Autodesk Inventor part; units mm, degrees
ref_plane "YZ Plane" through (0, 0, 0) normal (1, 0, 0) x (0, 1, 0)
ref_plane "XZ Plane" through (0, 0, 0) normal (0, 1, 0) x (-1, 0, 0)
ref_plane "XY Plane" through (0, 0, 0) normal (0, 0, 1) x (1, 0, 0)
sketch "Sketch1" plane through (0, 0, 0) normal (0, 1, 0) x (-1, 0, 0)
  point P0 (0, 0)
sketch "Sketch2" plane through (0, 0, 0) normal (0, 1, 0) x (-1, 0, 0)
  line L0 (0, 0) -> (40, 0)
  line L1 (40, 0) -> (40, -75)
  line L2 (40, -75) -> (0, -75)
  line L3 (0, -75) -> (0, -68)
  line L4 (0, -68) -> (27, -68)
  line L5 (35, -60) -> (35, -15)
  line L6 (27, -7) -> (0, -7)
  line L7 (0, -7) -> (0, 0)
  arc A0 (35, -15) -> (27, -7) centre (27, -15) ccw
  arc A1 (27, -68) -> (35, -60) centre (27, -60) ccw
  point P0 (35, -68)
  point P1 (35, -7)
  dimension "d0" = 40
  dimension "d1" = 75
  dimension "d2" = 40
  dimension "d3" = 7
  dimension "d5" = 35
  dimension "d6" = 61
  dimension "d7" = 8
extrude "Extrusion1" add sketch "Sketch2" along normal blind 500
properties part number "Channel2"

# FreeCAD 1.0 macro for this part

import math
import FreeCAD as App
import Part
import Sketcher

V = App.Vector

doc = App.newDocument("Part")
body = doc.addObject("PartDesign::Body", "Body")

sketch1 = doc.addObject("Sketcher::SketchObject", "Sketch")
body.addObject(sketch1)
sketch1.AttachmentSupport = (doc.XZ_Plane, [""])
sketch1.MapMode = "FlatFace"
sketch1.addGeometry([
    Part.LineSegment(V(-40, 0, 0), V(0, 0, 0)),
    Part.LineSegment(V(0, 0, 0), V(0, -7, 0)),
    Part.LineSegment(V(0, -7, 0), V(-27, -7, 0)),
    Part.ArcOfCircle(Part.Circle(V(-27, -15, 0), V(0, 0, 1), 8), math.radians(90), math.radians(180)),
    Part.LineSegment(V(-35, -15, 0), V(-35, -60, 0)),
    Part.ArcOfCircle(Part.Circle(V(-27, -60, 0), V(0, 0, 1), 8), math.radians(180), math.radians(270)),
    Part.LineSegment(V(-27, -68, 0), V(0, -68, 0)),
    Part.LineSegment(V(0, -68, 0), V(0, -75, 0)),
    Part.LineSegment(V(0, -75, 0), V(-40, -75, 0)),
    Part.LineSegment(V(-40, -75, 0), V(-40, 0, 0)),
], False)
sketch1.addConstraint([
    Sketcher.Constraint("Coincident", 0, 2, 1, 1),
    Sketcher.Constraint("Coincident", 1, 2, 2, 1),
    Sketcher.Constraint("Tangent", 2, 2, 3, 1),
    Sketcher.Constraint("Tangent", 3, 2, 4, 1),
    Sketcher.Constraint("Tangent", 4, 2, 5, 1),
    Sketcher.Constraint("Tangent", 5, 2, 6, 1),
    Sketcher.Constraint("Coincident", 6, 2, 7, 1),
    Sketcher.Constraint("Coincident", 7, 2, 8, 1),
    Sketcher.Constraint("Coincident", 8, 2, 9, 1),
    Sketcher.Constraint("Coincident", 9, 2, 0, 1),
    Sketcher.Constraint("Horizontal", 0),
    Sketcher.Constraint("Vertical", 1),
    Sketcher.Constraint("Horizontal", 2),
    Sketcher.Constraint("Vertical", 4),
    Sketcher.Constraint("Horizontal", 6),
    Sketcher.Constraint("Vertical", 7),
    Sketcher.Constraint("Horizontal", 8),
    Sketcher.Constraint("Vertical", 9),
    Sketcher.Constraint("Coincident", 0, 2, -1, 1),
    Sketcher.Constraint("Equal", 3, 5),
    Sketcher.Constraint("PointOnObject", 6, 2, -2),
    Sketcher.Constraint("Equal", 1, 7),
    Sketcher.Constraint("Radius", 3, 8.0),
    Sketcher.Constraint("DistanceX", 0, 1, 0, 2, 40.0),
    Sketcher.Constraint("DistanceY", 1, 2, 1, 1, 7.0),
    Sketcher.Constraint("DistanceY", 9, 1, 9, 2, 75.0),
    Sketcher.Constraint("DistanceX", 3, 2, -1, 1, 35.0),
])
pad1 = doc.addObject("PartDesign::Pad", "Pad")
body.addObject(pad1)
pad1.Profile = sketch1
pad1.Length = 500
pad1.Reversed = True

doc.recompute()
